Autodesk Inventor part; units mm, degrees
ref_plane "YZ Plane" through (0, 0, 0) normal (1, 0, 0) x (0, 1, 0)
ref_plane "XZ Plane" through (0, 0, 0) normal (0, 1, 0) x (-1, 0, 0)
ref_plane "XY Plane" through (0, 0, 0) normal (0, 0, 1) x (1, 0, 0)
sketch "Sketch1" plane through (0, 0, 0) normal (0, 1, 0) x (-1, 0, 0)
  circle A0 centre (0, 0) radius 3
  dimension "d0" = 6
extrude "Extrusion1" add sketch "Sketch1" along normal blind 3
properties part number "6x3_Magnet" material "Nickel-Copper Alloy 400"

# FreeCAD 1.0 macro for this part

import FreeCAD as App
import Part
import Sketcher
from FreeCAD import Vector
Q = App.Units.Quantity

doc = App.newDocument("Part")
params = doc.addObject("Spreadsheet::Sheet", "Params")
for row, (alias, value) in enumerate([
    ("sketch1_diameter", "6 mm"),
    ("pad1_length", "3 mm"),
], start=1):
    params.set(f"A{row}", alias)
    params.set(f"B{row}", "=" + value)
    params.setAlias(f"B{row}", alias)

body = doc.addObject("PartDesign::Body", "Body")

# Sketch on XZ plane
sketch1 = body.newObject("Sketcher::SketchObject", "Sketch")
sketch1.AttachmentSupport = (doc.getObject("XZ_Plane"), [""])
sketch1.MapMode = "FlatFace"
sketch1.addGeometry(Part.Circle(Vector(0, 0, 0), Vector(0, 0, 1), 3), False)
sketch1.addConstraint([
    Sketcher.Constraint("Coincident", 0, 3, -1, 1),
    Sketcher.Constraint("Diameter", 0, Q("6 mm")),
])
sketch1.setExpression("Constraints[1]", "Params.sketch1_diameter")
pad1 = body.newObject("PartDesign::Pad", "Pad")
pad1.Profile = sketch1
pad1.setExpression("Length", "Params.pad1_length")
pad1.Reversed = True

doc.recompute()
